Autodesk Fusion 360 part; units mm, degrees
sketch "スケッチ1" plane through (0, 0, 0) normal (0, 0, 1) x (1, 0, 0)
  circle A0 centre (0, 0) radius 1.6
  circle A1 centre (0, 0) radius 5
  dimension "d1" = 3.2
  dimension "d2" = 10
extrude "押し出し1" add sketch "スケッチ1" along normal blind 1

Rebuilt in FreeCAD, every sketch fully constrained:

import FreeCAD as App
import Part
import Sketcher

V = App.Vector
Q = App.Units.Quantity

doc = App.newDocument("Part")
body = doc.addObject("PartDesign::Body", "Body")

sketch1 = doc.addObject("Sketcher::SketchObject", "Sketch")
body.addObject(sketch1)
sketch1.AttachmentSupport = (doc.XY_Plane, [""])
sketch1.MapMode = "FlatFace"
sketch1.addGeometry([
    Part.Circle(V(0, 0, 0), V(0, 0, 1), 5),
    Part.Circle(V(0, 0, 0), V(0, 0, 1), 1.6),
], False)
sketch1.addConstraint([
    Sketcher.Constraint("Coincident", 0, 3, -1, 1),
    Sketcher.Constraint("Coincident", 1, 3, -1, 1),
    Sketcher.Constraint("Diameter", 0, Q("10 mm")),
    Sketcher.Constraint("Diameter", 1, Q("3.2 mm")),
])
pad1 = doc.addObject("PartDesign::Pad", "Pad")
body.addObject(pad1)
pad1.Profile = sketch1
pad1.Length = 1

doc.recompute()
